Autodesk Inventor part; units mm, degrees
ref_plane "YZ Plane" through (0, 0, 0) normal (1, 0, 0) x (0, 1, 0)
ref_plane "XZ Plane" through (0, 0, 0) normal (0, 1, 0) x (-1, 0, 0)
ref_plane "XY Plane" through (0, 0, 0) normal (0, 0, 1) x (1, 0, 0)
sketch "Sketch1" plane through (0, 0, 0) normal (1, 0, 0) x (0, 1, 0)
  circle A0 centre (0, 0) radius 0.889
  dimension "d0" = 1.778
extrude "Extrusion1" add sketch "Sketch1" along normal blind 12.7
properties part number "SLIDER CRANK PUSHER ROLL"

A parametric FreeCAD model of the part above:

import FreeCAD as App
import Part
import Sketcher
Q = App.Units.Quantity

doc = App.newDocument("Part")
body = doc.addObject("PartDesign::Body", "Body")

sketch1 = doc.addObject("Sketcher::SketchObject", "Sketch")
body.addObject(sketch1)
sketch1.AttachmentSupport = (doc.YZ_Plane, [""])
sketch1.MapMode = "FlatFace"
sketch1.addGeometry(Part.Circle(App.Vector(0, 0, 0), App.Vector(0, 0, 1), 0.9), False)
sketch1.addConstraint([
    Sketcher.Constraint("Coincident", 0, 3, -1, 1),
    Sketcher.Constraint("Diameter", 0, Q("0.07 in")),
])
pad1 = doc.addObject("PartDesign::Pad", "Pad")
body.addObject(pad1)
pad1.Profile = sketch1
pad1.Length = Q("0.5 in")

doc.recompute()
